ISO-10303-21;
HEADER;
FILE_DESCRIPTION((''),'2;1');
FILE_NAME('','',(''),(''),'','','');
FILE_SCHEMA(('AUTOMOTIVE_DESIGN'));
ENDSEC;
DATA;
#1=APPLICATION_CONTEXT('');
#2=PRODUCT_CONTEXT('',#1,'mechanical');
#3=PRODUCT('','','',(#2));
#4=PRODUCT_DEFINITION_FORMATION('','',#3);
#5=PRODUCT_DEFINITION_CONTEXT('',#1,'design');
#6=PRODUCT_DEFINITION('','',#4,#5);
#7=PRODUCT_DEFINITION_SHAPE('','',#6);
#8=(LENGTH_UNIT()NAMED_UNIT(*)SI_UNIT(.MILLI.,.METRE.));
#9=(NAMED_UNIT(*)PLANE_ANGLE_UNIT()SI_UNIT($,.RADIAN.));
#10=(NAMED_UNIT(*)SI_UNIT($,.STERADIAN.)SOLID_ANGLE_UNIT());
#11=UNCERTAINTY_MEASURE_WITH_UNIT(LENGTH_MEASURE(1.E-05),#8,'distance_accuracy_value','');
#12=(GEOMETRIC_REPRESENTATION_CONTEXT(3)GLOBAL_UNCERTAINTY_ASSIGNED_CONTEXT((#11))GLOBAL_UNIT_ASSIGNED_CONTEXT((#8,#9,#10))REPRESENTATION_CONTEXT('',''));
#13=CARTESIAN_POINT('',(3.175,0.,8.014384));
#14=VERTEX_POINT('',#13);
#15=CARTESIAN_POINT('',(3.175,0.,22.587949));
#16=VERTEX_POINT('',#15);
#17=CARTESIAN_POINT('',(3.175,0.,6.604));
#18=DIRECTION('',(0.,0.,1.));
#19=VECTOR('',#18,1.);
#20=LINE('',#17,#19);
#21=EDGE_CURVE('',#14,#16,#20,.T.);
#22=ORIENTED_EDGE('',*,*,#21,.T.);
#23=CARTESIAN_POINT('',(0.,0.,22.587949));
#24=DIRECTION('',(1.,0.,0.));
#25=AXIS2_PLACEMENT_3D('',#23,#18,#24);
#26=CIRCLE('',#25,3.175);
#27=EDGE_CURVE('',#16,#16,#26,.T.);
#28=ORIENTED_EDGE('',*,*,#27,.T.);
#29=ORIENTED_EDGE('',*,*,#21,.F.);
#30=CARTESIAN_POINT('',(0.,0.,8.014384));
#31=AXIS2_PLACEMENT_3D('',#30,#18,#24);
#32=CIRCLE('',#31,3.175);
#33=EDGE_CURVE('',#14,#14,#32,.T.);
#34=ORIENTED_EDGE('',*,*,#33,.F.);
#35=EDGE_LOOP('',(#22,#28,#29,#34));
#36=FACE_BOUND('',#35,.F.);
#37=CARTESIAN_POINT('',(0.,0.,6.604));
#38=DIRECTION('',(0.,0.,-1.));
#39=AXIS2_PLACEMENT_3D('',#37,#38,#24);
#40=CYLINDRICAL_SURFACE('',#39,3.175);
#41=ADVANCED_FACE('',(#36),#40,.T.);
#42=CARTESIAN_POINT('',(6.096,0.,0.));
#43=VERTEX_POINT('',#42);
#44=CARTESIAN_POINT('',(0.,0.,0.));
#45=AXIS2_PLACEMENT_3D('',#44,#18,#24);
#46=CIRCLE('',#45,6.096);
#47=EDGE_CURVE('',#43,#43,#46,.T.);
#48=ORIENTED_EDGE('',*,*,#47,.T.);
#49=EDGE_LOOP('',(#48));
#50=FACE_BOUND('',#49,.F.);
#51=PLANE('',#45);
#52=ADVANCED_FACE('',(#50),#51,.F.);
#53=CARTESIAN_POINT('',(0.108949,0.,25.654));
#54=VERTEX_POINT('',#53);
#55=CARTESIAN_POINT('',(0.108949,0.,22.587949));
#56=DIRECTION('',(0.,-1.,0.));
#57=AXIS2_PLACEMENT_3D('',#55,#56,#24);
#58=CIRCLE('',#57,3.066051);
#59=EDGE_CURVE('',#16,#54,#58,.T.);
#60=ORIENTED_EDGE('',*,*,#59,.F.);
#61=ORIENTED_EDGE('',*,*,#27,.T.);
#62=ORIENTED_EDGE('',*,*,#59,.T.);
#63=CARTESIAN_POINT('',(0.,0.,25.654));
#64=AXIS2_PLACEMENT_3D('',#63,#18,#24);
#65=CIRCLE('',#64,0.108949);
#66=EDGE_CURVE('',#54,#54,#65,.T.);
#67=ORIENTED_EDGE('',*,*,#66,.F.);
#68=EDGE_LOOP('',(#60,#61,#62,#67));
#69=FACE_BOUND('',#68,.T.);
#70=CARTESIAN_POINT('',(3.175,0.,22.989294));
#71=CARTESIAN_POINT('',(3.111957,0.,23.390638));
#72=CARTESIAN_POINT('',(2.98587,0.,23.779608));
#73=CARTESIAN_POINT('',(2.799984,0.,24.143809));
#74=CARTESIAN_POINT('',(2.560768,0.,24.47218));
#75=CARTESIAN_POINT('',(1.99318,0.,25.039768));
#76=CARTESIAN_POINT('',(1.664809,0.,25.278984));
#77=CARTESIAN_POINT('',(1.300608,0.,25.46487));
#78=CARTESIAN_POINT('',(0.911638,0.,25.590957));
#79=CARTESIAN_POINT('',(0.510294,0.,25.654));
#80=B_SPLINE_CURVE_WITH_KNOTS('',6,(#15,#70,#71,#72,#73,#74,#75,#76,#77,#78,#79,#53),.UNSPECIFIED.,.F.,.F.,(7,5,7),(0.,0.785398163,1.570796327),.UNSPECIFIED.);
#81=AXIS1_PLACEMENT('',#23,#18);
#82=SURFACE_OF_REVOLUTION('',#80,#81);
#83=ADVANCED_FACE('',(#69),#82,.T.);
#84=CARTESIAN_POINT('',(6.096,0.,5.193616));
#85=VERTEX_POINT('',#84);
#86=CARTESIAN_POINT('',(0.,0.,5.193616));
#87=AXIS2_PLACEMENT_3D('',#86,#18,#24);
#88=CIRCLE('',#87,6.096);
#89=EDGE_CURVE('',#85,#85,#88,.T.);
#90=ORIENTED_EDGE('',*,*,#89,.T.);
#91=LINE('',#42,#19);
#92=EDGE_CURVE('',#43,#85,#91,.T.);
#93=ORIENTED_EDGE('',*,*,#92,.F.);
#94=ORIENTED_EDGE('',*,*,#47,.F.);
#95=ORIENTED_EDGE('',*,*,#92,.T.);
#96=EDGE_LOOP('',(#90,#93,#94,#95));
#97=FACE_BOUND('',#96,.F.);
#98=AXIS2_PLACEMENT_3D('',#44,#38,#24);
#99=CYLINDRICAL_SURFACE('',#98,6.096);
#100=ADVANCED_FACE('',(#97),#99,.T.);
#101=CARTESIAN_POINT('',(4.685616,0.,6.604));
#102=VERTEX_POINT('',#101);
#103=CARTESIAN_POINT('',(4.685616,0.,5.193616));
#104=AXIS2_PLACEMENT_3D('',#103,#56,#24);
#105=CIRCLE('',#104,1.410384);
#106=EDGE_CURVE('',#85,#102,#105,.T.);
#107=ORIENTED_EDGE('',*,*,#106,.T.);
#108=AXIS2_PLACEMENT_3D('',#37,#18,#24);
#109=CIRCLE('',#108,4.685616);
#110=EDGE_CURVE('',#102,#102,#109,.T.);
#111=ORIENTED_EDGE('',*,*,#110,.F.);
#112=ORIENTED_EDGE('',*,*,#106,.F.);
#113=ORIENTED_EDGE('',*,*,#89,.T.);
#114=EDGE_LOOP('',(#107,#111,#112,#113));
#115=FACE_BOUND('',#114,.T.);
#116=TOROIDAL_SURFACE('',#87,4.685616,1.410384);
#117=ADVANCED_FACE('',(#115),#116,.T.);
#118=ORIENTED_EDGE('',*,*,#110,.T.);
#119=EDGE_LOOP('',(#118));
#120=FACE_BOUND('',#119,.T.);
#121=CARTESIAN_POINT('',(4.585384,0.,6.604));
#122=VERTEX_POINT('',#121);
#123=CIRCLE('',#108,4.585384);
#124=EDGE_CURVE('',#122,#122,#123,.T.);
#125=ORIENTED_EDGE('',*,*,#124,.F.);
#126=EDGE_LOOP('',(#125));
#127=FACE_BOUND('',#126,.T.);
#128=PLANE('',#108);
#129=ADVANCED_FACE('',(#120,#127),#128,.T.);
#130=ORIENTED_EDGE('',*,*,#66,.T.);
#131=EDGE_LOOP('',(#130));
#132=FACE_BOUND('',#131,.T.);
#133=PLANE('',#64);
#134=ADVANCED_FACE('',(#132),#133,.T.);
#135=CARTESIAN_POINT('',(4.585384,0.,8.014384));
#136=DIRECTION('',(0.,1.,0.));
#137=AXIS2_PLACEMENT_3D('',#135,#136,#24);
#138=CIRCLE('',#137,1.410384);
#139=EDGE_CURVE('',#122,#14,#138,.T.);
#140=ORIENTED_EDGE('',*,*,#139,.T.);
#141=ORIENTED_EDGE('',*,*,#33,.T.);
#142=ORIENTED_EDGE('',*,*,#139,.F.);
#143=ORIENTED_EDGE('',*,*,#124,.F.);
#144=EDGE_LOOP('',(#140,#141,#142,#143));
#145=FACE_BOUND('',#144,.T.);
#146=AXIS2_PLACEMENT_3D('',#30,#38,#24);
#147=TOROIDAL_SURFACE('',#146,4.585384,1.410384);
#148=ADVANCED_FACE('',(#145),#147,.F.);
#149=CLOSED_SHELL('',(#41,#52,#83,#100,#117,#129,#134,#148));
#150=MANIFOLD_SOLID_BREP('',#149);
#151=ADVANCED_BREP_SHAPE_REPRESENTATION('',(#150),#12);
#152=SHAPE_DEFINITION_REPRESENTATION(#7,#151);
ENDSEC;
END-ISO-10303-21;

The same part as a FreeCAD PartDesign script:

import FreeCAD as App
import Part
import Sketcher

V = App.Vector
Q = App.Units.Quantity


def edges_at(feature, points):
    """Names of the edges that pass closest to the given points."""
    edges = feature.Shape.Edges
    near = lambda p: min(range(len(edges)), key=lambda i: edges[i].distToShape(Part.Vertex(*p))[0])
    return sorted({f"Edge{near(p) + 1}" for p in points})

doc = App.newDocument("Part")
params = doc.addObject("Spreadsheet::Sheet", "Params")
for row, (alias, value) in enumerate([
    ("sketch1_diameter", "0.48 in"),
    ("pad1_length", "0.26 in"),
    ("sketch2_diameter", "0.25 in"),
    ("pad2_length", "0.75 in"),
    ("fillet_radius", "1.410384 mm"),
    ("fillet2_radius", "3.066051 mm"),
], start=1):
    params.set(f"A{row}", alias)
    params.set(f"B{row}", "=" + value)
    params.setAlias(f"B{row}", alias)

body = doc.addObject("PartDesign::Body", "Body")

# Sketch on XY plane
sketch1 = doc.addObject("Sketcher::SketchObject", "Sketch")
body.addObject(sketch1)
sketch1.AttachmentSupport = (doc.XY_Plane, [""])
sketch1.MapMode = "FlatFace"
sketch1.addGeometry(Part.Circle(V(0, 0, 0), V(0, 0, 1), 6), False)
sketch1.addConstraint([
    Sketcher.Constraint("Coincident", 0, 3, -1, 1),
    Sketcher.Constraint("Diameter", 0, Q("0.48 in")),
])
sketch1.setExpression("Constraints[1]", "Params.sketch1_diameter")
pad1 = doc.addObject("PartDesign::Pad", "Pad")
body.addObject(pad1)
pad1.Profile = sketch1
pad1.setExpression("Length", "Params.pad1_length")

# Sketch on XY plane
sketch2 = doc.addObject("Sketcher::SketchObject", "Sketch001")
body.addObject(sketch2)
sketch2.AttachmentSupport = (doc.XY_Plane, [""])
sketch2.MapMode = "FlatFace"
sketch2.AttachmentOffset = App.Placement(V(0, 0, 0.26 * 25.4), App.Rotation())
sketch2.addGeometry(Part.Circle(V(0, 0, 0), V(0, 0, 1), 3.2), False)
sketch2.addConstraint([
    Sketcher.Constraint("Coincident", 0, 3, -1, 1),
    Sketcher.Constraint("Diameter", 0, Q("0.25 in")),
])
sketch2.setExpression("Constraints[1]", "Params.sketch2_diameter")
pad2 = doc.addObject("PartDesign::Pad", "Pad001")
body.addObject(pad2)
pad2.Profile = sketch2
pad2.setExpression("Length", "Params.pad2_length")
doc.recompute()

fillet = doc.addObject("PartDesign::Fillet", "Fillet")
body.addObject(fillet)
fillet.Base = (pad2, edges_at(pad2, [(-6.096, 0, 6.604), (-3.175, 0, 6.604)]))
fillet.setExpression("Radius", "Params.fillet_radius")
doc.recompute()

fillet2 = doc.addObject("PartDesign::Fillet", "Fillet001")
body.addObject(fillet2)
fillet2.Base = (fillet, edges_at(fillet, [(3.175, 0, 16.834), (-3.175, 0, 8.014), (-3.175, 0, 25.654)]))
fillet2.setExpression("Radius", "Params.fillet2_radius")

doc.recompute()
